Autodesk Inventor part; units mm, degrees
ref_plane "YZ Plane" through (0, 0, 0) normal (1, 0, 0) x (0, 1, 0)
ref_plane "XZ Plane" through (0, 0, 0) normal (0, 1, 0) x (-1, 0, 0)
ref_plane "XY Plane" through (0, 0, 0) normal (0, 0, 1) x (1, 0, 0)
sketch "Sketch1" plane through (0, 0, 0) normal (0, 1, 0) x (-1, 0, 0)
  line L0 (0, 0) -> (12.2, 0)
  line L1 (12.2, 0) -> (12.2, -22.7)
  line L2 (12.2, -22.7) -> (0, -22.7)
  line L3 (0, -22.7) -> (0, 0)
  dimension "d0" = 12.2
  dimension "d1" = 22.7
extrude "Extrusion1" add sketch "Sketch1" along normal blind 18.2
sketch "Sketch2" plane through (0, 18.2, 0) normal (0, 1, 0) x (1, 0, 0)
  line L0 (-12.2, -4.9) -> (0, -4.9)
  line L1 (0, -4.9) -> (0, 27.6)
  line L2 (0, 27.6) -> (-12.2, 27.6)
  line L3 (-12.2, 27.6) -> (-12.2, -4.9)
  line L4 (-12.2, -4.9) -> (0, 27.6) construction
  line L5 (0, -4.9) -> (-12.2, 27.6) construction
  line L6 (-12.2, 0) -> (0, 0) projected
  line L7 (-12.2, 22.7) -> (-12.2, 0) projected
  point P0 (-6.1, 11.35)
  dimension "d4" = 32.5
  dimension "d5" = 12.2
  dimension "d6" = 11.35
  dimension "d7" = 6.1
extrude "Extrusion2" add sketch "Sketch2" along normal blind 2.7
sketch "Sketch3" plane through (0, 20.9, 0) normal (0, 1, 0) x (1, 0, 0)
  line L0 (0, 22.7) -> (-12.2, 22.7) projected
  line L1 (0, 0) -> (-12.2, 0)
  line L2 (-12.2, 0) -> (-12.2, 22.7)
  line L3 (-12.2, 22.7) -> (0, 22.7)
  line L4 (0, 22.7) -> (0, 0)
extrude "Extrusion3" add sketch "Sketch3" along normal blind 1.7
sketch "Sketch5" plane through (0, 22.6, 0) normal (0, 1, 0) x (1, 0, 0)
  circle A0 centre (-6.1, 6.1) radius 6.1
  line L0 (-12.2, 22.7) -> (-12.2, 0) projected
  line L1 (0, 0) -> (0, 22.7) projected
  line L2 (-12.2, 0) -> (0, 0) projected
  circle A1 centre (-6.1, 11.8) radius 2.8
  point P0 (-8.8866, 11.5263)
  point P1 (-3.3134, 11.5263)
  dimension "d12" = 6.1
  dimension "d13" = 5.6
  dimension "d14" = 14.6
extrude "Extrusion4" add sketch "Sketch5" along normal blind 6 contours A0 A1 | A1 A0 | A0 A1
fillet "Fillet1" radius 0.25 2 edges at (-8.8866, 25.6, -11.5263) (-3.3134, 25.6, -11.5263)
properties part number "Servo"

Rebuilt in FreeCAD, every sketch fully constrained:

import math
import FreeCAD as App
import Part
import Sketcher
from FreeCAD import Vector


def edges_at(feature, points):
    """Names of the edges that pass closest to the given points."""
    edges = feature.Shape.Edges
    near = lambda p: min(range(len(edges)), key=lambda i: edges[i].distToShape(Part.Vertex(*p))[0])
    return sorted({f"Edge{near(p) + 1}" for p in points})

doc = App.newDocument("Part")
body = doc.addObject("PartDesign::Body", "Body")

# Sketch on XZ plane
sketch1 = doc.addObject("Sketcher::SketchObject", "Sketch")
body.addObject(sketch1)
sketch1.AttachmentSupport = (doc.XZ_Plane, [""])
sketch1.MapMode = "FlatFace"
sketch1.addGeometry([
    Part.LineSegment(Vector(-12, 0, 0), Vector(0, 0, 0)),
    Part.LineSegment(Vector(0, 0, 0), Vector(0, -23, 0)),
    Part.LineSegment(Vector(0, -23, 0), Vector(-12, -23, 0)),
    Part.LineSegment(Vector(-12, -23, 0), Vector(-12, 0, 0)),
], False)
sketch1.addConstraint([
    Sketcher.Constraint("Coincident", 0, 2, 1, 1),
    Sketcher.Constraint("Coincident", 1, 2, 2, 1),
    Sketcher.Constraint("Coincident", 2, 2, 3, 1),
    Sketcher.Constraint("Coincident", 3, 2, 0, 1),
    Sketcher.Constraint("Horizontal", 0),
    Sketcher.Constraint("Vertical", 1),
    Sketcher.Constraint("Horizontal", 2),
    Sketcher.Constraint("Vertical", 3),
    Sketcher.Constraint("Coincident", 0, 2, -1, 1),
    Sketcher.Constraint("DistanceX", 0, 1, 0, 2, 12.2),
    Sketcher.Constraint("DistanceY", 1, 2, 1, 1, 22.7),
])
pad1 = doc.addObject("PartDesign::Pad", "Pad")
body.addObject(pad1)
pad1.Profile = sketch1
pad1.Length = 18.2
pad1.Reversed = True

# Sketch on XZ plane
sketch2 = doc.addObject("Sketcher::SketchObject", "Sketch001")
body.addObject(sketch2)
sketch2.AttachmentSupport = (doc.XZ_Plane, [""])
sketch2.MapMode = "FlatFace"
sketch2.AttachmentOffset = App.Placement(Vector(0, 0, -18.2), App.Rotation())
sketch2.addGeometry([
    Part.LineSegment(Vector(-12, 5, 0), Vector(0, 5, 0)),
    Part.LineSegment(Vector(0, 5, 0), Vector(0, -28, 0)),
    Part.LineSegment(Vector(0, -28, 0), Vector(-12, -28, 0)),
    Part.LineSegment(Vector(-12, -28, 0), Vector(-12, 5, 0)),
], False)
sketch2.addConstraint([
    Sketcher.Constraint("Coincident", 0, 2, 1, 1),
    Sketcher.Constraint("Coincident", 1, 2, 2, 1),
    Sketcher.Constraint("Coincident", 2, 2, 3, 1),
    Sketcher.Constraint("Coincident", 3, 2, 0, 1),
    Sketcher.Constraint("Horizontal", 0),
    Sketcher.Constraint("Vertical", 1),
    Sketcher.Constraint("Horizontal", 2),
    Sketcher.Constraint("Vertical", 3),
    Sketcher.Constraint("PointOnObject", 0, 2, -2),
    Sketcher.Constraint("DistanceX", 0, 1, 0, 2, 12.2),
    Sketcher.Constraint("DistanceY", 1, 2, 1, 1, 32.5),
    Sketcher.Constraint("DistanceY", -1, 1, 0, 2, 4.9),
])
pad2 = doc.addObject("PartDesign::Pad", "Pad001")
body.addObject(pad2)
pad2.Profile = sketch2
pad2.Length = 2.7
pad2.Reversed = True

# Sketch on XZ plane
sketch3 = doc.addObject("Sketcher::SketchObject", "Sketch002")
body.addObject(sketch3)
sketch3.AttachmentSupport = (doc.XZ_Plane, [""])
sketch3.MapMode = "FlatFace"
sketch3.AttachmentOffset = App.Placement(Vector(0, 0, -20.9), App.Rotation())
sketch3.addGeometry([
    Part.LineSegment(Vector(0, 0, 0), Vector(0, -23, 0)),
    Part.LineSegment(Vector(0, -23, 0), Vector(-12, -23, 0)),
    Part.LineSegment(Vector(-12, -23, 0), Vector(-12, 0, 0)),
    Part.LineSegment(Vector(-12, 0, 0), Vector(0, 0, 0)),
], False)
sketch3.addConstraint([
    Sketcher.Constraint("Coincident", 0, 2, 1, 1),
    Sketcher.Constraint("Coincident", 1, 2, 2, 1),
    Sketcher.Constraint("Coincident", 2, 2, 3, 1),
    Sketcher.Constraint("Coincident", 3, 2, 0, 1),
    Sketcher.Constraint("Vertical", 0),
    Sketcher.Constraint("Horizontal", 1),
    Sketcher.Constraint("Vertical", 2),
    Sketcher.Constraint("Horizontal", 3),
    Sketcher.Constraint("Coincident", 3, 2, -1, 1),
    Sketcher.Constraint("DistanceX", 1, 2, 1, 1, 12.2),
    Sketcher.Constraint("DistanceY", 0, 2, 0, 1, 22.7),
])
pad3 = doc.addObject("PartDesign::Pad", "Pad002")
body.addObject(pad3)
pad3.Profile = sketch3
pad3.Length = 1.7
pad3.Reversed = True

# Sketch on XZ plane
sketch4 = doc.addObject("Sketcher::SketchObject", "Sketch003")
body.addObject(sketch4)
sketch4.AttachmentSupport = (doc.XZ_Plane, [""])
sketch4.MapMode = "FlatFace"
sketch4.AttachmentOffset = App.Placement(Vector(0, 0, -22.6), App.Rotation())
sketch4.addGeometry([
    Part.ArcOfCircle(Part.Circle(Vector(-6.1, -11.8, 0), Vector(0, 0, 1), 2.8), math.radians(174), math.radians(366)),
    Part.ArcOfCircle(Part.Circle(Vector(-6.1, -6.1, 0), Vector(0, 0, 1), 6.1), math.radians(-63), math.radians(243)),
], False)
sketch4.addConstraint([
    Sketcher.Constraint("Coincident", 0, 1, 1, 2),
    Sketcher.Constraint("Coincident", 1, 1, 0, 2),
    Sketcher.Constraint("Horizontal", 0, 1, 1, 1),
    Sketcher.Constraint("Radius", 0, 2.8),
    Sketcher.Constraint("Radius", 1, 6.1),
    Sketcher.Constraint("DistanceX", 0, 3, -1, 1, 6.1),
    Sketcher.Constraint("DistanceY", 1, 3, -1, 1, 6.1),
    Sketcher.Constraint("DistanceY", 0, 3, -1, 1, 11.8),
])
pad4 = doc.addObject("PartDesign::Pad", "Pad003")
body.addObject(pad4)
pad4.Profile = sketch4
pad4.Length = 6
pad4.Reversed = True
doc.recompute()

fillet = doc.addObject("PartDesign::Fillet", "Fillet")
body.addObject(fillet)
fillet.Base = (pad4, edges_at(pad4, [(-8.887, 25.6, -11.526), (-3.313, 25.6, -11.526)]))
fillet.Radius = 0.25

doc.recompute()
